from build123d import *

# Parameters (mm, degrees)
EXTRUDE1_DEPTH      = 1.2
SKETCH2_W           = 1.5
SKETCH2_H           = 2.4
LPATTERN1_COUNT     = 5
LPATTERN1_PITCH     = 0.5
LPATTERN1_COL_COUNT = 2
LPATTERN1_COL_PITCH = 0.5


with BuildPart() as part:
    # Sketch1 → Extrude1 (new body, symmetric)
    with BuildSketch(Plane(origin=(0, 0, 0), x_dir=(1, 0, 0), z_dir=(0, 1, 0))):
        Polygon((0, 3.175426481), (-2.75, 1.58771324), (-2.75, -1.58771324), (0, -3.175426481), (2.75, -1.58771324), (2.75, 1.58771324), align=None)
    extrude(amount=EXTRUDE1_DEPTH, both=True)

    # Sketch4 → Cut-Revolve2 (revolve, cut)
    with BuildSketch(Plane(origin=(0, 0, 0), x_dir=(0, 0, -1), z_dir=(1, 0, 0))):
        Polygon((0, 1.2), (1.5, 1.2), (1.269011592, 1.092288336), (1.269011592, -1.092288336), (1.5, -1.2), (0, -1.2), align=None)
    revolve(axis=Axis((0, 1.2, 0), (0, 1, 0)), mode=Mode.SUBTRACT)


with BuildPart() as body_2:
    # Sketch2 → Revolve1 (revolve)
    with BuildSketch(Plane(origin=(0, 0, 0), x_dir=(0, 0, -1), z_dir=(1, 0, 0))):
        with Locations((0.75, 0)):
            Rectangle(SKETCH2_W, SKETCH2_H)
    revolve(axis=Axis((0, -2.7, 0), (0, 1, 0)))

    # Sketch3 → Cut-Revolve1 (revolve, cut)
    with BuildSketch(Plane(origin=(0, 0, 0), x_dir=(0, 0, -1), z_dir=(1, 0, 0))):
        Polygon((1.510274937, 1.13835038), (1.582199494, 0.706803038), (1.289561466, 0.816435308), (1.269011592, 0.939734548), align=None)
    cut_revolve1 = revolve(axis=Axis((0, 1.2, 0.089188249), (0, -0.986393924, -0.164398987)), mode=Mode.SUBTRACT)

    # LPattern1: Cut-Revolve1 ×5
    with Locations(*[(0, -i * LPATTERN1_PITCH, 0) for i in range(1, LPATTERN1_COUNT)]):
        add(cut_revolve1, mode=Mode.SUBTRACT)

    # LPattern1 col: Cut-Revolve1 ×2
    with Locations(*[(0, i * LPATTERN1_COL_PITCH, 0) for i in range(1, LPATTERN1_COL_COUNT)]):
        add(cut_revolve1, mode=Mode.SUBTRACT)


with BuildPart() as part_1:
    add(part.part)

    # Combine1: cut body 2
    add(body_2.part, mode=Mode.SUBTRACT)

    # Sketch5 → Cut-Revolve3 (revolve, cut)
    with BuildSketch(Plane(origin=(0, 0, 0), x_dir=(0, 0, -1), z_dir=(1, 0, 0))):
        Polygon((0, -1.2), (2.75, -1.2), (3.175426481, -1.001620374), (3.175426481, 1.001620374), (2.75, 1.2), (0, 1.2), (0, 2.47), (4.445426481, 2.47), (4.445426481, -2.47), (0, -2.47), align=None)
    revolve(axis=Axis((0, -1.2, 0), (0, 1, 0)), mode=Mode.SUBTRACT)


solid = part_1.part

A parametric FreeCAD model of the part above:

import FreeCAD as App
import Part
import Sketcher

V = App.Vector
Q = App.Units.Quantity

doc = App.newDocument("Part")
body = doc.addObject("PartDesign::Body", "Body")

sketch1 = body.newObject("Sketcher::SketchObject", "Sketch")
sketch1.AttachmentSupport = (doc.getObject("XZ_Plane"), [""])
sketch1.MapMode = "FlatFace"
sketch1.addGeometry(Part.LineSegment(V(0, -3.175426, 0), V(-2.75, -1.587713, 0)), False)
sketch1.addGeometry(Part.LineSegment(V(-2.75, -1.587713, 0), V(-2.75, 1.587713, 0)), False)
sketch1.addGeometry(Part.LineSegment(V(-2.75, 1.587713, 0), V(0, 3.175426, 0)), False)
sketch1.addGeometry(Part.LineSegment(V(0, 3.175426, 0), V(2.75, 1.587713, 0)), False)
sketch1.addGeometry(Part.LineSegment(V(2.75, 1.587713, 0), V(2.75, -1.587713, 0)), False)
sketch1.addGeometry(Part.LineSegment(V(2.75, -1.587713, 0), V(0, -3.175426, 0)), False)
sketch1.addConstraint(Sketcher.Constraint("Coincident", 0, 2, 1, 1))
sketch1.addConstraint(Sketcher.Constraint("Coincident", 1, 2, 2, 1))
sketch1.addConstraint(Sketcher.Constraint("Coincident", 2, 2, 3, 1))
sketch1.addConstraint(Sketcher.Constraint("Coincident", 3, 2, 4, 1))
sketch1.addConstraint(Sketcher.Constraint("Coincident", 4, 2, 5, 1))
sketch1.addConstraint(Sketcher.Constraint("Coincident", 5, 2, 0, 1))
sketch1.addConstraint(Sketcher.Constraint("Vertical", 1))
sketch1.addConstraint(Sketcher.Constraint("Vertical", 4))
sketch1.addConstraint(Sketcher.Constraint("Symmetric", 0, 2, 3, 2, -1, 1))
sketch1.addConstraint(Sketcher.Constraint("Symmetric", 2, 2, 5, 2, -1, 1))
sketch1.addConstraint(Sketcher.Constraint("PointOnObject", 2, 2, -2))
sketch1.addConstraint(Sketcher.Constraint("Parallel", 2, 5))
sketch1.addConstraint(Sketcher.Constraint("Horizontal", 1, 2, 3, 2))
sketch1.addConstraint(Sketcher.Constraint("Angle", 0, Q("150 deg")))
sketch1.addConstraint(Sketcher.Constraint("DistanceX", 1, 2, 3, 2, Q("5.5 mm")))
sketch1.addConstraint(Sketcher.Constraint("DistanceY", 1, 1, 1, 2, Q("3.175426 mm")))
pad1 = body.newObject("PartDesign::Pad", "Pad")
pad1.Profile = sketch1
pad1.Length = 2.4
pad1.Midplane = True

sketch2 = body.newObject("Sketcher::SketchObject", "Sketch001")
sketch2.AttachmentSupport = (doc.getObject("YZ_Plane"), [""])
sketch2.MapMode = "FlatFace"
sketch2.addGeometry(Part.LineSegment(V(1.2, -1.5, 0), V(1.2, 0, 0)), False)
sketch2.addGeometry(Part.LineSegment(V(1.2, 0, 0), V(-1.2, 0, 0)), False)
sketch2.addGeometry(Part.LineSegment(V(-1.2, 0, 0), V(-1.2, -1.5, 0)), False)
sketch2.addGeometry(Part.LineSegment(V(-1.2, -1.5, 0), V(-1.092288, -1.269012, 0)), False)
sketch2.addGeometry(Part.LineSegment(V(-1.092288, -1.269012, 0), V(1.092288, -1.269012, 0)), False)
sketch2.addGeometry(Part.LineSegment(V(1.092288, -1.269012, 0), V(1.2, -1.5, 0)), False)
sketch2.addConstraint(Sketcher.Constraint("Coincident", 0, 2, 1, 1))
sketch2.addConstraint(Sketcher.Constraint("Coincident", 1, 2, 2, 1))
sketch2.addConstraint(Sketcher.Constraint("Coincident", 2, 2, 3, 1))
sketch2.addConstraint(Sketcher.Constraint("Coincident", 3, 2, 4, 1))
sketch2.addConstraint(Sketcher.Constraint("Coincident", 4, 2, 5, 1))
sketch2.addConstraint(Sketcher.Constraint("Coincident", 5, 2, 0, 1))
sketch2.addConstraint(Sketcher.Constraint("Vertical", 0))
sketch2.addConstraint(Sketcher.Constraint("Horizontal", 1))
sketch2.addConstraint(Sketcher.Constraint("Vertical", 2))
sketch2.addConstraint(Sketcher.Constraint("Horizontal", 4))
sketch2.addConstraint(Sketcher.Constraint("Symmetric", 0, 2, 1, 2, -1, 1))
sketch2.addConstraint(Sketcher.Constraint("Horizontal", 2, 2, 5, 2))
sketch2.addConstraint(Sketcher.Constraint("Equal", 3, 5))
sketch2.addConstraint(Sketcher.Constraint("Angle", 3, Q("65 deg")))
sketch2.addConstraint(Sketcher.Constraint("DistanceX", 1, 2, 1, 1, Q("2.4 mm")))
sketch2.addConstraint(Sketcher.Constraint("DistanceY", 0, 1, 0, 2, Q("1.5 mm")))
sketch2.addConstraint(Sketcher.Constraint("DistanceX", 4, 1, 4, 2, Q("2.184577 mm")))
groove = body.newObject("PartDesign::Groove", "Groove")
groove.Profile = sketch2
groove.ReferenceAxis = (sketch2, ["H_Axis"])
groove.Angle = 360
body2 = doc.addObject("PartDesign::Body", "Body001")

sketch3 = body2.newObject("Sketcher::SketchObject", "Sketch002")
sketch3.AttachmentSupport = (doc.getObject("YZ_Plane001"), [""])
sketch3.MapMode = "FlatFace"
sketch3.addGeometry(Part.LineSegment(V(1.2, 0, 0), V(-1.2, 0, 0)), False)
sketch3.addGeometry(Part.LineSegment(V(-1.2, 0, 0), V(-1.2, -1.5, 0)), False)
sketch3.addGeometry(Part.LineSegment(V(-1.2, -1.5, 0), V(1.2, -1.5, 0)), False)
sketch3.addGeometry(Part.LineSegment(V(1.2, -1.5, 0), V(1.2, 0, 0)), False)
sketch3.addConstraint(Sketcher.Constraint("Coincident", 0, 2, 1, 1))
sketch3.addConstraint(Sketcher.Constraint("Coincident", 1, 2, 2, 1))
sketch3.addConstraint(Sketcher.Constraint("Coincident", 2, 2, 3, 1))
sketch3.addConstraint(Sketcher.Constraint("Coincident", 3, 2, 0, 1))
sketch3.addConstraint(Sketcher.Constraint("Horizontal", 0))
sketch3.addConstraint(Sketcher.Constraint("Vertical", 1))
sketch3.addConstraint(Sketcher.Constraint("Horizontal", 2))
sketch3.addConstraint(Sketcher.Constraint("Vertical", 3))
sketch3.addConstraint(Sketcher.Constraint("Symmetric", 0, 2, 3, 2, -1, 1))
sketch3.addConstraint(Sketcher.Constraint("DistanceX", 0, 2, 0, 1, Q("2.4 mm")))
sketch3.addConstraint(Sketcher.Constraint("DistanceY", 1, 2, 1, 1, Q("1.5 mm")))
revolution = body2.newObject("PartDesign::Revolution", "Revolution")
revolution.Profile = sketch3
revolution.ReferenceAxis = (sketch3, ["H_Axis"])
revolution.Angle = 360

sketch4 = body2.newObject("Sketcher::SketchObject", "Sketch003")
sketch4.AttachmentSupport = (doc.getObject("YZ_Plane001"), [""])
sketch4.MapMode = "FlatFace"
sketch4.addGeometry(Part.LineSegment(V(0.706803, -1.582199, 0), V(1.13835, -1.510275, 0)), False)
sketch4.addGeometry(Part.LineSegment(V(1.13835, -1.510275, 0), V(0.939735, -1.269012, 0)), False)
sketch4.addGeometry(Part.LineSegment(V(0.939735, -1.269012, 0), V(0.816435, -1.289561, 0)), False)
sketch4.addGeometry(Part.LineSegment(V(0.816435, -1.289561, 0), V(0.706803, -1.582199, 0)), False)
sketch4.addGeometry(Part.LineSegment(V(0.880644, 0.035962, 0), V(0.449097, -0.035962, 0)), True)
sketch4.addConstraint(Sketcher.Constraint("Coincident", 0, 2, 1, 1))
sketch4.addConstraint(Sketcher.Constraint("Coincident", 1, 2, 2, 1))
sketch4.addConstraint(Sketcher.Constraint("Coincident", 2, 2, 3, 1))
sketch4.addConstraint(Sketcher.Constraint("Coincident", 3, 2, 0, 1))
sketch4.addConstraint(Sketcher.Constraint("Parallel", 0, 2))
sketch4.addConstraint(Sketcher.Constraint("Parallel", 2, 4))
sketch4.addConstraint(Sketcher.Constraint("Equal", 1, 3))
sketch4.addConstraint(Sketcher.Constraint("Equal", 0, 4))
sketch4.addConstraint(Sketcher.Constraint("Distance", 2, Q("0.125 mm")))
sketch4.addConstraint(Sketcher.Constraint("Distance", 0, Q("0.4375 mm")))
sketch4.addConstraint(Sketcher.Constraint("Distance", 1, Q("0.3125 mm")))
sketch4.addConstraint(Sketcher.Constraint("DistanceY", 3, 2, -1, 1, Q("1.582199 mm")))
sketch4.addConstraint(Sketcher.Constraint("DistanceX", 2, 2, 1, 2, Q("0.123299 mm")))
sketch4.addConstraint(Sketcher.Constraint("DistanceY", 2, 2, 4, 2, Q("1.253599 mm")))
sketch4.addConstraint(Sketcher.Constraint("DistanceX", -1, 1, 0, 2, Q("1.13835 mm")))
sketch4.addConstraint(Sketcher.Constraint("DistanceX", 4, 1, 1, 2, Q("0.05909 mm")))
groove2 = body2.newObject("PartDesign::Groove", "Groove001")
groove2.Profile = sketch4
groove2.ReferenceAxis = (sketch4, ["Axis0"])
groove2.Angle = 360
doc.recompute()

linearpattern = body2.newObject("PartDesign::LinearPattern", "LinearPattern")
linearpattern.Originals = [groove2]
linearpattern.Direction = (doc.getObject("Y_Axis001"), [""])
linearpattern.Mode = "offset"
linearpattern.Offset = 0.5
linearpattern.Occurrences = 5
linearpattern.Reversed = True
body2.Tip = linearpattern
doc.recompute()

linearpattern2 = body2.newObject("PartDesign::LinearPattern", "LinearPattern001")
linearpattern2.Originals = [groove2]
linearpattern2.Direction = (doc.getObject("Y_Axis001"), [""])
linearpattern2.Mode = "offset"
linearpattern2.Offset = 0.5
linearpattern2.Occurrences = 2
body2.Tip = linearpattern2
doc.recompute()

boolean = body.newObject("PartDesign::Boolean", "Boolean")
boolean.Type = "Cut"
boolean.addObjects([body2])

sketch5 = body.newObject("Sketcher::SketchObject", "Sketch004")
sketch5.AttachmentSupport = (doc.getObject("YZ_Plane"), [""])
sketch5.MapMode = "FlatFace"
sketch5.addGeometry(Part.LineSegment(V(-1.2, -2.75, 0), V(-1.2, 0, 0)), False)
sketch5.addGeometry(Part.LineSegment(V(-1.2, 0, 0), V(-2.47, 0, 0)), False)
sketch5.addGeometry(Part.LineSegment(V(-2.47, 0, 0), V(-2.47, -4.445426, 0)), False)
sketch5.addGeometry(Part.LineSegment(V(-2.47, -4.445426, 0), V(2.47, -4.445426, 0)), False)
sketch5.addGeometry(Part.LineSegment(V(2.47, -4.445426, 0), V(2.47, 0, 0)), False)
sketch5.addGeometry(Part.LineSegment(V(2.47, 0, 0), V(1.2, 0, 0)), False)
sketch5.addGeometry(Part.LineSegment(V(1.2, 0, 0), V(1.2, -2.75, 0)), False)
sketch5.addGeometry(Part.LineSegment(V(1.2, -2.75, 0), V(1.00162, -3.175426, 0)), False)
sketch5.addGeometry(Part.LineSegment(V(1.00162, -3.175426, 0), V(-1.00162, -3.175426, 0)), False)
sketch5.addGeometry(Part.LineSegment(V(-1.00162, -3.175426, 0), V(-1.2, -2.75, 0)), False)
sketch5.addConstraint(Sketcher.Constraint("Coincident", 0, 2, 1, 1))
sketch5.addConstraint(Sketcher.Constraint("Coincident", 1, 2, 2, 1))
sketch5.addConstraint(Sketcher.Constraint("Coincident", 2, 2, 3, 1))
sketch5.addConstraint(Sketcher.Constraint("Coincident", 3, 2, 4, 1))
sketch5.addConstraint(Sketcher.Constraint("Coincident", 4, 2, 5, 1))
sketch5.addConstraint(Sketcher.Constraint("Coincident", 5, 2, 6, 1))
sketch5.addConstraint(Sketcher.Constraint("Coincident", 6, 2, 7, 1))
sketch5.addConstraint(Sketcher.Constraint("Coincident", 7, 2, 8, 1))
sketch5.addConstraint(Sketcher.Constraint("Coincident", 8, 2, 9, 1))
sketch5.addConstraint(Sketcher.Constraint("Coincident", 9, 2, 0, 1))
sketch5.addConstraint(Sketcher.Constraint("Vertical", 0))
sketch5.addConstraint(Sketcher.Constraint("Horizontal", 1))
sketch5.addConstraint(Sketcher.Constraint("Vertical", 2))
sketch5.addConstraint(Sketcher.Constraint("Horizontal", 3))
sketch5.addConstraint(Sketcher.Constraint("Vertical", 4))
sketch5.addConstraint(Sketcher.Constraint("Horizontal", 5))
sketch5.addConstraint(Sketcher.Constraint("Vertical", 6))
sketch5.addConstraint(Sketcher.Constraint("Horizontal", 8))
sketch5.addConstraint(Sketcher.Constraint("Symmetric", 1, 2, 4, 2, -1, 1))
sketch5.addConstraint(Sketcher.Constraint("Symmetric", 0, 2, 5, 2, -2))
sketch5.addConstraint(Sketcher.Constraint("Horizontal", 6, 2, 9, 2))
sketch5.addConstraint(Sketcher.Constraint("Equal", 7, 9))
sketch5.addConstraint(Sketcher.Constraint("Angle", 7, Q("-115 deg")))
sketch5.addConstraint(Sketcher.Constraint("DistanceX", 1, 2, 1, 1, Q("1.27 mm")))
sketch5.addConstraint(Sketcher.Constraint("DistanceX", 3, 1, 3, 2, Q("4.94 mm")))
sketch5.addConstraint(Sketcher.Constraint("DistanceY", 0, 1, 0, 2, Q("2.75 mm")))
sketch5.addConstraint(Sketcher.Constraint("DistanceY", 3, 2, 7, 2, Q("1.27 mm")))
sketch5.addConstraint(Sketcher.Constraint("DistanceX", 8, 2, 8, 1, Q("2.003241 mm")))
groove3 = body.newObject("PartDesign::Groove", "Groove002")
groove3.Profile = sketch5
groove3.ReferenceAxis = (sketch5, ["H_Axis"])
groove3.Angle = 360

doc.recompute()
